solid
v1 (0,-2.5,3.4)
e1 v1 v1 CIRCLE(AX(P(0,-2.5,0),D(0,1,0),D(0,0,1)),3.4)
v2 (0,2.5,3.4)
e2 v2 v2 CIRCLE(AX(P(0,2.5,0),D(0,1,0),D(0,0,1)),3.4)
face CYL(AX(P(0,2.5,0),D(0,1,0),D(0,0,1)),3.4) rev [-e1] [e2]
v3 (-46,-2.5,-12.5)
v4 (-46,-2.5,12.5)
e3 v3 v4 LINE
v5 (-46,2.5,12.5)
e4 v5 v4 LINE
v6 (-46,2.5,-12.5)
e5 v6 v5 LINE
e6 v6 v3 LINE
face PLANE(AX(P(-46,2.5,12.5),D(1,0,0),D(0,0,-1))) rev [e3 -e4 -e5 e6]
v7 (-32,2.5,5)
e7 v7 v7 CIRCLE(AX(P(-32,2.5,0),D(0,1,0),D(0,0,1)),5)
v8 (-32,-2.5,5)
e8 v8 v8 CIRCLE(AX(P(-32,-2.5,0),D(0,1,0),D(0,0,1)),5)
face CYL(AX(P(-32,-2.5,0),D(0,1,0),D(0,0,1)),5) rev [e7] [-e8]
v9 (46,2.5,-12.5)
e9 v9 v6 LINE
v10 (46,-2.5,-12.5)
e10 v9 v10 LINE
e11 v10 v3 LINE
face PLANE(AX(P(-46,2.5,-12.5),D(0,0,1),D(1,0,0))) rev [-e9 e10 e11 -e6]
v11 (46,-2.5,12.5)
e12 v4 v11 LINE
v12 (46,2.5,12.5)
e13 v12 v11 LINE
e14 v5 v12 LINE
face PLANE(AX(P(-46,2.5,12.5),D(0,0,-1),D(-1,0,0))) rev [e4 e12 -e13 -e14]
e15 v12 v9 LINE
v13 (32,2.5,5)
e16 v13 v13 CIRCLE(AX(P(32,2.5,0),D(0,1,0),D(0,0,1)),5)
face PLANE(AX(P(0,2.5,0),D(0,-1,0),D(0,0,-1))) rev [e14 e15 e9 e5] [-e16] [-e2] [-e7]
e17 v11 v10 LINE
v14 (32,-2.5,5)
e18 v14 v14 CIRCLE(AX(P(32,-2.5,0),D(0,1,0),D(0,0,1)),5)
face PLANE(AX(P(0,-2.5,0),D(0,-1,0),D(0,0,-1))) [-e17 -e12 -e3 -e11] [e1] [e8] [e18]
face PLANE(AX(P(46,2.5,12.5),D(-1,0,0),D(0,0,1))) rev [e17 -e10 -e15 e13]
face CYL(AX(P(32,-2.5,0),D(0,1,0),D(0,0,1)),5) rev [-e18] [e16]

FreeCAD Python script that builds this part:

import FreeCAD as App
import Part
import Sketcher

V = App.Vector
Q = App.Units.Quantity


def add_polygon(sketch, points):
    """Adds a closed chain of lines whose ends are joined by coincident constraints."""
    first, n = sketch.GeometryCount, len(points)
    for a, b in zip(points, points[1:] + points[:1]):
        sketch.addGeometry(Part.LineSegment(App.Vector(*a, 0), App.Vector(*b, 0)), False)
    for i in range(n):
        sketch.addConstraint(Sketcher.Constraint("Coincident", first + i, 2, first + (i + 1) % n, 1))

doc = App.newDocument("Part")
body = doc.addObject("PartDesign::Body", "Body")

# Sketch on XZ plane
sketch1 = body.newObject("Sketcher::SketchObject", "Sketch")
sketch1.AttachmentSupport = (doc.getObject("XZ_Plane"), [""])
sketch1.MapMode = "FlatFace"
add_polygon(sketch1, [(-46, -12), (-46, 12), (46, 12), (46, -12)])  # lines 0-3
sketch1.addConstraint([
    Sketcher.Constraint("Vertical", 0),
    Sketcher.Constraint("Horizontal", 1),
    Sketcher.Constraint("Vertical", 2),
    Sketcher.Constraint("Horizontal", 3),
    Sketcher.Constraint("Symmetric", 0, 2, 2, 2, -1, 1),
    Sketcher.Constraint("DistanceX", 1, 1, 1, 2, Q("92 mm")),
    Sketcher.Constraint("DistanceY", 0, 1, 0, 2, Q("25 mm")),
])
pad1 = body.newObject("PartDesign::Pad", "Pad")
pad1.Profile = sketch1
pad1.Length = 5
pad1.Midplane = True

# Sketch on XZ plane
sketch2 = body.newObject("Sketcher::SketchObject", "Sketch001")
sketch2.AttachmentSupport = (doc.getObject("XZ_Plane"), [""])
sketch2.MapMode = "FlatFace"
sketch2.AttachmentOffset = App.Placement(V(0, 0, -2.5), App.Rotation())
sketch2.addGeometry([
    Part.Circle(V(32, 0, 0), V(0, 0, 1), 5),
    Part.Circle(V(-32, 0, 0), V(0, 0, 1), 5),
], False)
sketch2.addConstraint([
    Sketcher.Constraint("Equal", 0, 1),
    Sketcher.Constraint("Symmetric", 0, 3, 1, 3, -1, 1),
    Sketcher.Constraint("PointOnObject", 0, 3, -1),
    Sketcher.Constraint("Diameter", 0, Q("10 mm")),
    Sketcher.Constraint("DistanceX", -1, 1, 0, 3, Q("32 mm")),
])
pocket1 = body.newObject("PartDesign::Pocket", "Pocket")
pocket1.Profile = sketch2
pocket1.Type = "ThroughAll"
pocket1.Reversed = True

# Sketch on XZ plane
sketch3 = body.newObject("Sketcher::SketchObject", "Sketch002")
sketch3.AttachmentSupport = (doc.getObject("XZ_Plane"), [""])
sketch3.MapMode = "FlatFace"
sketch3.AttachmentOffset = App.Placement(V(0, 0, -2.5), App.Rotation())
sketch3.addGeometry(Part.Circle(V(0, 0, 0), V(0, 0, 1), 3.4), False)
sketch3.addConstraint([
    Sketcher.Constraint("Coincident", 0, 3, -1, 1),
    Sketcher.Constraint("Diameter", 0, Q("6.8 mm")),
])
doc.recompute()
hole = body.newObject("PartDesign::Hole", "Hole")
hole.Profile = sketch3
hole.ThreadType = "None"
hole.Diameter = 6.8
hole.DepthType = "ThroughAll"
hole.Reversed = True

doc.recompute()
